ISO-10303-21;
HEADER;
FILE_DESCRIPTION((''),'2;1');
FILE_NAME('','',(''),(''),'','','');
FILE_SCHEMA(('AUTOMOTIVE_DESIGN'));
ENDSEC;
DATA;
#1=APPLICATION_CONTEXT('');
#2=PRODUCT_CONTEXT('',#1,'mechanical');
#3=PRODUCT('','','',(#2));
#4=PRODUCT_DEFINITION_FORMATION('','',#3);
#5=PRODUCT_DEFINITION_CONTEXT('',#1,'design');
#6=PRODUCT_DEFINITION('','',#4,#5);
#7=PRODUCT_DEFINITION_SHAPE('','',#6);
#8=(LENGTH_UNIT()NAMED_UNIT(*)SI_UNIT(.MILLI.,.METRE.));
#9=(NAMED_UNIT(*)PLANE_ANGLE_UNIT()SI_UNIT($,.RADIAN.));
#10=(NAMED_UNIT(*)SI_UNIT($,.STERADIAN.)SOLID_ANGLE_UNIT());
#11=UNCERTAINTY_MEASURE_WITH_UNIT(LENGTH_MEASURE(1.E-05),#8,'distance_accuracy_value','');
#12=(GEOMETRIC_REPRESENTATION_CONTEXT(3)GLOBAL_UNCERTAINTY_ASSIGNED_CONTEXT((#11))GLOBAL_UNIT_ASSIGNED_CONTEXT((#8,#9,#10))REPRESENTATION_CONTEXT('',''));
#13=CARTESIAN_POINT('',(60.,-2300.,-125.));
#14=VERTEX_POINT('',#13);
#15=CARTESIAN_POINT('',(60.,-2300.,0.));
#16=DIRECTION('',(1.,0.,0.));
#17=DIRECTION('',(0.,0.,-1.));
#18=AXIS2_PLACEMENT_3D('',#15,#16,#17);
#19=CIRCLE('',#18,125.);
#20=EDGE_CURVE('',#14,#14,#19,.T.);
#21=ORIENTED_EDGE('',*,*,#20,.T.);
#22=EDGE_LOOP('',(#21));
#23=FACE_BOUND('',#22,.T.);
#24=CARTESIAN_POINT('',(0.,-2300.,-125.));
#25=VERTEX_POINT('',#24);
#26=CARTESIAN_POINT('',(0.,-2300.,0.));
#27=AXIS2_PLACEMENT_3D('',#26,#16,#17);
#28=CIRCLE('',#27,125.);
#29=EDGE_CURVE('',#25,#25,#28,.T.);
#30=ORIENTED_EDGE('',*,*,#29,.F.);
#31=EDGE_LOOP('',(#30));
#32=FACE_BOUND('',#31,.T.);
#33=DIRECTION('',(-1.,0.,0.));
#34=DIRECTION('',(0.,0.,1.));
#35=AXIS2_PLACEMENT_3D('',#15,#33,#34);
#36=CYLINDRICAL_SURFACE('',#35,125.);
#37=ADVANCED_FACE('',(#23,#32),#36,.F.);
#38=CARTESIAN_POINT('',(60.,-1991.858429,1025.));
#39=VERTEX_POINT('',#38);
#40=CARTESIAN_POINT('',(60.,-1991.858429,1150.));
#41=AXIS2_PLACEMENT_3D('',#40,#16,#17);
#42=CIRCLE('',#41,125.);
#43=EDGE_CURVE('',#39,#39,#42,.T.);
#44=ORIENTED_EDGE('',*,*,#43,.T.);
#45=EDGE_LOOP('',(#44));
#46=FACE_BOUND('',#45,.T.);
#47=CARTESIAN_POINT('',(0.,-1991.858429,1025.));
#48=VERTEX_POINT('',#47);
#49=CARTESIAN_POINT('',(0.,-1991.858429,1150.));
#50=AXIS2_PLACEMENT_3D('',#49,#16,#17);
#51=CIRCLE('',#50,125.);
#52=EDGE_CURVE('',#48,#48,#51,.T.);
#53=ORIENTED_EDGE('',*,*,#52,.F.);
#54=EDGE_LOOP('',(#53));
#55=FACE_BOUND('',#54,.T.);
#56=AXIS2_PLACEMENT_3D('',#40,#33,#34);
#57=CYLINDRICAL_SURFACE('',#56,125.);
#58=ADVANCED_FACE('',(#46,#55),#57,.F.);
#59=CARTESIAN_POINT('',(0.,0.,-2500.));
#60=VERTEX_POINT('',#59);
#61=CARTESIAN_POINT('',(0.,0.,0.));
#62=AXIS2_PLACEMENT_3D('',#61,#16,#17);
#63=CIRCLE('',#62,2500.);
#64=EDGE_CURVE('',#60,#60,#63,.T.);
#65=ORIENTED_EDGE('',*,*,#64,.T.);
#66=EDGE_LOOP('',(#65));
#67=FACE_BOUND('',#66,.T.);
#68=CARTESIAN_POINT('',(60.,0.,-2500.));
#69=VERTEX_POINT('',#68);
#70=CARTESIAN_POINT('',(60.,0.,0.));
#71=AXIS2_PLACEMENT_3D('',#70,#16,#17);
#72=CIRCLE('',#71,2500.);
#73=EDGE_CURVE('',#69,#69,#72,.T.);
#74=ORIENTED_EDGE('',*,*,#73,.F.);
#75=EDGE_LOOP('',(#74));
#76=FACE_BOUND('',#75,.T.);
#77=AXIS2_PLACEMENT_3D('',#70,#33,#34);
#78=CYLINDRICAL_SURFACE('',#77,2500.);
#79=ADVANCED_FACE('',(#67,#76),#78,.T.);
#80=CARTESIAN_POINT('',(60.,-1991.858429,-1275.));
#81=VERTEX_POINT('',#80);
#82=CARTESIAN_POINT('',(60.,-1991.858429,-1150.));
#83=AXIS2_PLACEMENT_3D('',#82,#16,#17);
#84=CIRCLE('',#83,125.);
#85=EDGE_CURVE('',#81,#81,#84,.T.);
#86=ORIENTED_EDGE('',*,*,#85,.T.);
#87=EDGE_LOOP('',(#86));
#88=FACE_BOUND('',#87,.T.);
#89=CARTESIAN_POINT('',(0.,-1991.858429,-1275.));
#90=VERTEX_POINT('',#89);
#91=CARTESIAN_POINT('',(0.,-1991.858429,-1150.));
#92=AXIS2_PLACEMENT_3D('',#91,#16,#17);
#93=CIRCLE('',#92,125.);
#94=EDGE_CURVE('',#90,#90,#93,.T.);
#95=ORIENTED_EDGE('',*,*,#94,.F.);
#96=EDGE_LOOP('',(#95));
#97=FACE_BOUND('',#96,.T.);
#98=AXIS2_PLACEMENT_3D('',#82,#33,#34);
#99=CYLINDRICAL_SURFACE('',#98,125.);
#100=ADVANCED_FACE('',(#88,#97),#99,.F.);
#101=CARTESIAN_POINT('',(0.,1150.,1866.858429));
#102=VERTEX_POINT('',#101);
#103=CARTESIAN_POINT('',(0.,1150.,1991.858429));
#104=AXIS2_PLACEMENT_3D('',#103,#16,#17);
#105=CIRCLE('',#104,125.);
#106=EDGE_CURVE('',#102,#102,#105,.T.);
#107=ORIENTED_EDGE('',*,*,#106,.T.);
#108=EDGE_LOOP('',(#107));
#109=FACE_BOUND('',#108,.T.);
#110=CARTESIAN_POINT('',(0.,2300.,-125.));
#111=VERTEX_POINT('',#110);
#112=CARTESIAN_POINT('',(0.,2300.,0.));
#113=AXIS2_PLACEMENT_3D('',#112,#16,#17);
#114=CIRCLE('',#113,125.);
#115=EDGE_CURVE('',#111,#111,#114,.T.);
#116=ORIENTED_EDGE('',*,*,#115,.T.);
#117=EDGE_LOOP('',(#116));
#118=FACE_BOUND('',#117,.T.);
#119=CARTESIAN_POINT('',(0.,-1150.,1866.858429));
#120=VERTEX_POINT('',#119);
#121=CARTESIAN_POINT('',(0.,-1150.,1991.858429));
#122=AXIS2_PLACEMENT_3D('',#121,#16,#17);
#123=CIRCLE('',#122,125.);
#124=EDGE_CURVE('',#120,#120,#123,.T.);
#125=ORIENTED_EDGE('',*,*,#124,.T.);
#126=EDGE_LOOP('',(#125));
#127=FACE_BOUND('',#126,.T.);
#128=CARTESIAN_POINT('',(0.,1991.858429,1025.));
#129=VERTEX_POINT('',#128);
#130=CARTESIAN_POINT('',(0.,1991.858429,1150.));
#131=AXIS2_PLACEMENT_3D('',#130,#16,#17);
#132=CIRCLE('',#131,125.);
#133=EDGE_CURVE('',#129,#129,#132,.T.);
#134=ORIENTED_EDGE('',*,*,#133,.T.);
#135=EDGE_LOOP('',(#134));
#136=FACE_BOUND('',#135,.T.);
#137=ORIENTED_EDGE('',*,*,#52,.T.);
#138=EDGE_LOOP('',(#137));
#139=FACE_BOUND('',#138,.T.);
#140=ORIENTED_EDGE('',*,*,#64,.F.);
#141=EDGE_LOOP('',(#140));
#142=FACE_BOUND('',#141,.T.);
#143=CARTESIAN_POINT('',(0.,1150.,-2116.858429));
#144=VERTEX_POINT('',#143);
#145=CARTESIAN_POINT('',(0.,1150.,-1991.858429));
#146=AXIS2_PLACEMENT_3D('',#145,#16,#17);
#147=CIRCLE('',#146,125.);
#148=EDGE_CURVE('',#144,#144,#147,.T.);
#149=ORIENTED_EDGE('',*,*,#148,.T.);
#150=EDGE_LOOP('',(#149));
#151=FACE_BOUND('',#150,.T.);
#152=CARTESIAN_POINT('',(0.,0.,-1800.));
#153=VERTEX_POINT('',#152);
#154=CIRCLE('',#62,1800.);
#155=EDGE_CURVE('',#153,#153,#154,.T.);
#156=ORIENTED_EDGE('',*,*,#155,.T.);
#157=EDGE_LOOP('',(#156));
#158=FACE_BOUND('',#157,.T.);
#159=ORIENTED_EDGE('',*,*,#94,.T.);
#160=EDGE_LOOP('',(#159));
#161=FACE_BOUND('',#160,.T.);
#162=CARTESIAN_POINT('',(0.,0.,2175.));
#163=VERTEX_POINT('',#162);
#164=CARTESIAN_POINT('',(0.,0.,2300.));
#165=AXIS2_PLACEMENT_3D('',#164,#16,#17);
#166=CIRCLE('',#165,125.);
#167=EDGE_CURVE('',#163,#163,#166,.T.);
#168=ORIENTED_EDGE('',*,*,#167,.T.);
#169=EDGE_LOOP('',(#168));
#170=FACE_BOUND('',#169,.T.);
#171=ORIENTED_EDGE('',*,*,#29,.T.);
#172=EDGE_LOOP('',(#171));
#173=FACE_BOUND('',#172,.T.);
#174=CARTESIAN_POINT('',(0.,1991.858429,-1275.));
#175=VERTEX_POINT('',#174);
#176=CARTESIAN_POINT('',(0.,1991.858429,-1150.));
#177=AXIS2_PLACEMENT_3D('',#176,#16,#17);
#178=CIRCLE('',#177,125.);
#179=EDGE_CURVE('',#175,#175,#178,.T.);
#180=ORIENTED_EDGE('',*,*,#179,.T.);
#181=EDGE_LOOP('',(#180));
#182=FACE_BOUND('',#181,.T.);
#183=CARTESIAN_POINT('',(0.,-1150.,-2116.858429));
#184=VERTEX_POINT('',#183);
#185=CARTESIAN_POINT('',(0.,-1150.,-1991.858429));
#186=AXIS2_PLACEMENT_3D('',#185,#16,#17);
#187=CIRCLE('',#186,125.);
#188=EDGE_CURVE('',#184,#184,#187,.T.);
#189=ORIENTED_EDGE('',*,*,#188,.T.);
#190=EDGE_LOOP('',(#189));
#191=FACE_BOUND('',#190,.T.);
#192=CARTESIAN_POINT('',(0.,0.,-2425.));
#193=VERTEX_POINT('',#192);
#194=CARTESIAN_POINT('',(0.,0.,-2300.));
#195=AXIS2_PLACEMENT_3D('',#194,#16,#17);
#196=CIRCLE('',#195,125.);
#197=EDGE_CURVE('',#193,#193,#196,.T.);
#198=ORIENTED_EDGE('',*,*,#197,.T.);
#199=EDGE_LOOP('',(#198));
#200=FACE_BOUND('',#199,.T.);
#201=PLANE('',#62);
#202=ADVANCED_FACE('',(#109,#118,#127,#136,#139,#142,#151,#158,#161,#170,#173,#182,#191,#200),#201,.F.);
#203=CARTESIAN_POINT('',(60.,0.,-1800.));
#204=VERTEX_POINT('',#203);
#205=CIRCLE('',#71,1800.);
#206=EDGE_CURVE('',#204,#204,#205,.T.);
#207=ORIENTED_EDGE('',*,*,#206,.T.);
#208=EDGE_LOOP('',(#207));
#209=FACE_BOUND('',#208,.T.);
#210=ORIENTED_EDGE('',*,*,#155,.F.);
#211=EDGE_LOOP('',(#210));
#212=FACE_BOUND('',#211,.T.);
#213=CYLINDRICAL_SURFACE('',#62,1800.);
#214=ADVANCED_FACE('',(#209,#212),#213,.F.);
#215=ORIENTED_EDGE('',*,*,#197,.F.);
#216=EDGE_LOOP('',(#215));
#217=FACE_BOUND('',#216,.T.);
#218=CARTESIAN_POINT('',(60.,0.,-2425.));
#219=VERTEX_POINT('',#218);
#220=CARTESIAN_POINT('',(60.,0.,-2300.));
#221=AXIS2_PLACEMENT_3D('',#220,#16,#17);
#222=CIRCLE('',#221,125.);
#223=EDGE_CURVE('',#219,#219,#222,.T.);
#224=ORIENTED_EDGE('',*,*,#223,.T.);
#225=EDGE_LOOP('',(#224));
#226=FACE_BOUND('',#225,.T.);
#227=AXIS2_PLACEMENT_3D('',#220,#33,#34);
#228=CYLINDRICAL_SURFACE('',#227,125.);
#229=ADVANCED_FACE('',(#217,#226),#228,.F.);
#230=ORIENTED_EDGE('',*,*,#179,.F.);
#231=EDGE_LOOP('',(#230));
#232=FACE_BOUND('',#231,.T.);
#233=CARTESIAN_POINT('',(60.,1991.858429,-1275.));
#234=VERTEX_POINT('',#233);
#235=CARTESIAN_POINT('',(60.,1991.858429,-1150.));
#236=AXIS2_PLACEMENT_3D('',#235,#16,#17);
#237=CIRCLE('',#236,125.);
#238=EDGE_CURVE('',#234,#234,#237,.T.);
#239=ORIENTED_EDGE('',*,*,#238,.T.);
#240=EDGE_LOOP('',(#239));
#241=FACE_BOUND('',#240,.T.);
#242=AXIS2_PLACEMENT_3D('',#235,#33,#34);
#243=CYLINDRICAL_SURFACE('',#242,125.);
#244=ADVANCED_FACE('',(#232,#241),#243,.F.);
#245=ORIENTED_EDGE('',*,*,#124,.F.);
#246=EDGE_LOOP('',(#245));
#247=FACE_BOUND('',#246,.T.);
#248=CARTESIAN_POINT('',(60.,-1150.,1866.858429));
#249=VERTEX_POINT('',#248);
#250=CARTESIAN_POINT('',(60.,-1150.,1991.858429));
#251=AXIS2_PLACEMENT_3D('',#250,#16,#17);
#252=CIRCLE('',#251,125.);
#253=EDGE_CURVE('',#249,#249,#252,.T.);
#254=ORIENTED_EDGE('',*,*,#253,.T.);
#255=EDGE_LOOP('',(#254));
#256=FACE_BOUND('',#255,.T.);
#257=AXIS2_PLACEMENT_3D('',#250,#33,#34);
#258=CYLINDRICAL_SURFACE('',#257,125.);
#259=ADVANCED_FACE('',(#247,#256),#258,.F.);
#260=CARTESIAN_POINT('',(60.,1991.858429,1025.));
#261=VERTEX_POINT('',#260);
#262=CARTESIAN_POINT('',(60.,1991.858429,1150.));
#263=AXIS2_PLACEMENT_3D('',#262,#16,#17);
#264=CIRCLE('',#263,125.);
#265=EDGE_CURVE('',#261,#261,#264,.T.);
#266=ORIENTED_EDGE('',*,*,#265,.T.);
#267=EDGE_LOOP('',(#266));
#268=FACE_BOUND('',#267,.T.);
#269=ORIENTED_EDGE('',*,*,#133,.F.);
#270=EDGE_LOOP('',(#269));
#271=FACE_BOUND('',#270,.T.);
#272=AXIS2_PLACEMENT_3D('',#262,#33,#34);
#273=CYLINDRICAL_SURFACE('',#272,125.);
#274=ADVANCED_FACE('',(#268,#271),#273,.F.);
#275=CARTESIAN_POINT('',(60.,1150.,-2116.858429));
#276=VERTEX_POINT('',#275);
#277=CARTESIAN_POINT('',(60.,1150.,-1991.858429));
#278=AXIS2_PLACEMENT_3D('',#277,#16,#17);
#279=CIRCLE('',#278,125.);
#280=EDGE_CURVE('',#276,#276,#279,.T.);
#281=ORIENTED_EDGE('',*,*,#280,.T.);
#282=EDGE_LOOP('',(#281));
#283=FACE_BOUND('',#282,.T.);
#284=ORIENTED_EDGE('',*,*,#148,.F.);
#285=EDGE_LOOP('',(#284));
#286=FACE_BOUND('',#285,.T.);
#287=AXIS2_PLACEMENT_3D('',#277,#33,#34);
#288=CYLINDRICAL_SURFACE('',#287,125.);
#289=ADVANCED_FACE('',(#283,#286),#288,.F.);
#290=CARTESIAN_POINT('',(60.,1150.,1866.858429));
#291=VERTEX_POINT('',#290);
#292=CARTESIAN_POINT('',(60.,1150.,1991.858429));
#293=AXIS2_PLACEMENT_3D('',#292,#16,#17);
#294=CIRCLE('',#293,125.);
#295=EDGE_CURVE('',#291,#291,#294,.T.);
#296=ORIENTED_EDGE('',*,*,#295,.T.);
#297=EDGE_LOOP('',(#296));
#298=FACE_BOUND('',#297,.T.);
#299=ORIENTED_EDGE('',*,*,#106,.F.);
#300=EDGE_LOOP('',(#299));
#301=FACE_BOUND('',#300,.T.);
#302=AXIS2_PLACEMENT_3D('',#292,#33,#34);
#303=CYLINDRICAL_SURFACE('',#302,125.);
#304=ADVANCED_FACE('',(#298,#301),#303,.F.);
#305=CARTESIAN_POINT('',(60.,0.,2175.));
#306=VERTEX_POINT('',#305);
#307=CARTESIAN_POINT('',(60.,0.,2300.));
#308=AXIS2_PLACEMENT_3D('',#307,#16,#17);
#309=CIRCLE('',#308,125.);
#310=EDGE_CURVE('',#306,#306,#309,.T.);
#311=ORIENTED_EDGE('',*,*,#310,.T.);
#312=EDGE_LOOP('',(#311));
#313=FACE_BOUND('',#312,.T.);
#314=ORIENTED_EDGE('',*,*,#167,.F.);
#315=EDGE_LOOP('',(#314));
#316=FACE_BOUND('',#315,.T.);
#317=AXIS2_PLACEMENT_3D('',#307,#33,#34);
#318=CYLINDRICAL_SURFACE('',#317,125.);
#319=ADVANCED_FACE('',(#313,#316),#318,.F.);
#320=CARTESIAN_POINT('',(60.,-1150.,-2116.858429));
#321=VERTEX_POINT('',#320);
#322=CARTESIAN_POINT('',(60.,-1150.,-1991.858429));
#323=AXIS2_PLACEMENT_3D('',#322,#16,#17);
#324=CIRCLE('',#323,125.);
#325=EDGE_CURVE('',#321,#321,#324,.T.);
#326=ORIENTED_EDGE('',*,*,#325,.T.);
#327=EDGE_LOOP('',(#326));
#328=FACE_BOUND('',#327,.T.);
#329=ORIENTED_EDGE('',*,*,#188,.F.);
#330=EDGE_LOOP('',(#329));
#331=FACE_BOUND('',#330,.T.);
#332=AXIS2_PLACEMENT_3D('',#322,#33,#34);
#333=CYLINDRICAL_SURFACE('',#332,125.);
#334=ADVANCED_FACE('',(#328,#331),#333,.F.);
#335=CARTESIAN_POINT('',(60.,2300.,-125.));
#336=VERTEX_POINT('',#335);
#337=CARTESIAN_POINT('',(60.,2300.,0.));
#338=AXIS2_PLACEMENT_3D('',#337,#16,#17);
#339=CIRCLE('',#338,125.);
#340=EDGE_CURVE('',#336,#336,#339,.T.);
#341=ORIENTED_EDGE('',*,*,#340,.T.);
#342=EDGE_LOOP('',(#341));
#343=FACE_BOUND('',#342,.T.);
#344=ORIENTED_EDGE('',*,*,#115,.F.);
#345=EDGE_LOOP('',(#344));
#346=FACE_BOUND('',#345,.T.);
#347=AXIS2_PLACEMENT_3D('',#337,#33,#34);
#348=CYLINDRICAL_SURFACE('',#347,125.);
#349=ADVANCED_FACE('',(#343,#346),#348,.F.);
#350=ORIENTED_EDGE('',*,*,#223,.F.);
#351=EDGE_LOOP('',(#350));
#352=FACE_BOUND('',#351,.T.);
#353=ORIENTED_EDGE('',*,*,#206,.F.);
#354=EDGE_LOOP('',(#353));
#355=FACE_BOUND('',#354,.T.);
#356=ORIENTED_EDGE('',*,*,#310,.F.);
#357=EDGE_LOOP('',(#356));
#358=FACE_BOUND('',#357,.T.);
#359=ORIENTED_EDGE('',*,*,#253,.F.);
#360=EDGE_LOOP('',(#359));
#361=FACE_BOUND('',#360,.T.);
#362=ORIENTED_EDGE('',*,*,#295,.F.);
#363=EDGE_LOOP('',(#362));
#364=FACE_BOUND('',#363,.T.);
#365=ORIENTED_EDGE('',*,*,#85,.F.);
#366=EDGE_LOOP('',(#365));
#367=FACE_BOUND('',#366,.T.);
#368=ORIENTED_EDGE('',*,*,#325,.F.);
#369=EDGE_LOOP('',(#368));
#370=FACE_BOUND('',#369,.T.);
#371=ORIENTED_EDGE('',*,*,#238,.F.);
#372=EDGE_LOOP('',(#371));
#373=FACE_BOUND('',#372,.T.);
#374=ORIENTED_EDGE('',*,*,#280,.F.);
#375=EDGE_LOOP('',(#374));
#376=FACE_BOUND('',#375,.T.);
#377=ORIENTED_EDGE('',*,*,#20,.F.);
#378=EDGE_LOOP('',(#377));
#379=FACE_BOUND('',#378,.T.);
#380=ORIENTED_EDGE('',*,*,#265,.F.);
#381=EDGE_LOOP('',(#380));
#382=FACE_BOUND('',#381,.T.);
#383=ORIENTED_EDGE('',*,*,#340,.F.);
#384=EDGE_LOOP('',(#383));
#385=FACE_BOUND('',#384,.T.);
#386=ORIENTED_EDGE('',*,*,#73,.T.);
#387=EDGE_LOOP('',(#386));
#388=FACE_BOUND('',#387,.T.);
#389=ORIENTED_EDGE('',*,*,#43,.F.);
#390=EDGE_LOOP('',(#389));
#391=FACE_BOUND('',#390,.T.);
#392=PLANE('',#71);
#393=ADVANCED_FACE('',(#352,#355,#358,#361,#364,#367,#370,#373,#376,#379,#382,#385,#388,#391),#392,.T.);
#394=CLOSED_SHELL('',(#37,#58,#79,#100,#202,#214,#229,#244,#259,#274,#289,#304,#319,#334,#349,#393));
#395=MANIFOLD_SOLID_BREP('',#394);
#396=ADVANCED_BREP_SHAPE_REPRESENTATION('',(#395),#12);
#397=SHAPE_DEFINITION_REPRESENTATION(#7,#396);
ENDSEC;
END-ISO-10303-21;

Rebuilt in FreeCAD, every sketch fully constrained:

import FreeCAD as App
import Part
import Sketcher

V = App.Vector
Q = App.Units.Quantity

doc = App.newDocument("Part")
body = doc.addObject("PartDesign::Body", "Body")

# Sketch on YZ plane
sketch1 = doc.addObject("Sketcher::SketchObject", "Sketch")
body.addObject(sketch1)
sketch1.AttachmentSupport = (doc.YZ_Plane, [""])
sketch1.MapMode = "FlatFace"
sketch1.addGeometry(Part.Circle(V(0, 0, 0), V(0, 0, 1), 2500), False)
sketch1.addGeometry(Part.Circle(V(-1991.858429, 1150, 0), V(0, 0, 1), 125), False)
sketch1.addGeometry(Part.Circle(V(-1150, 1991.858429, 0), V(0, 0, 1), 125), False)
sketch1.addGeometry(Part.Circle(V(-2300, 0, 0), V(0, 0, 1), 125), False)
sketch1.addGeometry(Part.Circle(V(-1991.858429, -1150, 0), V(0, 0, 1), 125), False)
sketch1.addGeometry(Part.Circle(V(-1150, -1991.858429, 0), V(0, 0, 1), 125), False)
sketch1.addGeometry(Part.Circle(V(0, 2300, 0), V(0, 0, 1), 125), False)
sketch1.addGeometry(Part.Circle(V(1150, 1991.858429, 0), V(0, 0, 1), 125), False)
sketch1.addGeometry(Part.Circle(V(1991.858429, 1150, 0), V(0, 0, 1), 125), False)
sketch1.addGeometry(Part.Circle(V(0, -2300, 0), V(0, 0, 1), 125), False)
sketch1.addGeometry(Part.Circle(V(1150, -1991.858429, 0), V(0, 0, 1), 125), False)
sketch1.addGeometry(Part.Circle(V(2300, 0, 0), V(0, 0, 1), 125), False)
sketch1.addGeometry(Part.Circle(V(1991.858429, -1150, 0), V(0, 0, 1), 125), False)
sketch1.addConstraint(Sketcher.Constraint("Coincident", 0, 3, -1, 1))
sketch1.addConstraint(Sketcher.Constraint("Equal", 1, 2))
sketch1.addConstraint(Sketcher.Constraint("Equal", 2, 3))
sketch1.addConstraint(Sketcher.Constraint("Equal", 3, 4))
sketch1.addConstraint(Sketcher.Constraint("Equal", 4, 5))
sketch1.addConstraint(Sketcher.Constraint("Equal", 5, 6))
sketch1.addConstraint(Sketcher.Constraint("Equal", 6, 7))
sketch1.addConstraint(Sketcher.Constraint("Equal", 7, 8))
sketch1.addConstraint(Sketcher.Constraint("Equal", 8, 9))
sketch1.addConstraint(Sketcher.Constraint("Equal", 9, 10))
sketch1.addConstraint(Sketcher.Constraint("Equal", 10, 11))
sketch1.addConstraint(Sketcher.Constraint("Equal", 11, 12))
sketch1.addConstraint(Sketcher.Constraint("Symmetric", 5, 3, 7, 3, -1, 1))
sketch1.addConstraint(Sketcher.Constraint("Symmetric", 4, 3, 8, 3, -1, 1))
sketch1.addConstraint(Sketcher.Constraint("Symmetric", 6, 3, 9, 3, -1, 1))
sketch1.addConstraint(Sketcher.Constraint("Symmetric", 2, 3, 10, 3, -1, 1))
sketch1.addConstraint(Sketcher.Constraint("Symmetric", 3, 3, 11, 3, -1, 1))
sketch1.addConstraint(Sketcher.Constraint("Symmetric", 1, 3, 12, 3, -1, 1))
sketch1.addConstraint(Sketcher.Constraint("Symmetric", 2, 3, 7, 3, -2))
sketch1.addConstraint(Sketcher.Constraint("Symmetric", 1, 3, 8, 3, -2))
sketch1.addConstraint(Sketcher.Constraint("PointOnObject", 3, 3, -1))
sketch1.addConstraint(Sketcher.Constraint("PointOnObject", 6, 3, -2))
sketch1.addConstraint(Sketcher.Constraint("Diameter", 0, Q("5000 mm")))
sketch1.addConstraint(Sketcher.Constraint("Diameter", 1, Q("250 mm")))
sketch1.addConstraint(Sketcher.Constraint("DistanceY", -1, 1, 1, 3, Q("1150 mm")))
sketch1.addConstraint(Sketcher.Constraint("DistanceX", 2, 3, -1, 1, Q("1150 mm")))
sketch1.addConstraint(Sketcher.Constraint("DistanceX", 3, 3, -1, 1, Q("2300 mm")))
sketch1.addConstraint(Sketcher.Constraint("DistanceY", -1, 1, 6, 3, Q("2300 mm")))
sketch1.addConstraint(Sketcher.Constraint("DistanceX", 1, 3, -1, 1, Q("1991.858429 mm")))
sketch1.addConstraint(Sketcher.Constraint("DistanceY", -1, 1, 2, 3, Q("1991.858429 mm")))
pad1 = doc.addObject("PartDesign::Pad", "Pad")
body.addObject(pad1)
pad1.Profile = sketch1
pad1.Length = 60

# Sketch on YZ plane
sketch2 = doc.addObject("Sketcher::SketchObject", "Sketch001")
body.addObject(sketch2)
sketch2.AttachmentSupport = (doc.YZ_Plane, [""])
sketch2.MapMode = "FlatFace"
sketch2.AttachmentOffset = App.Placement(V(0, 0, 60), App.Rotation())
sketch2.addGeometry(Part.Circle(V(0, 0, 0), V(0, 0, 1), 1800), False)
sketch2.addConstraint(Sketcher.Constraint("Coincident", 0, 3, -1, 1))
sketch2.addConstraint(Sketcher.Constraint("Diameter", 0, Q("3600 mm")))
pocket1 = doc.addObject("PartDesign::Pocket", "Pocket")
body.addObject(pocket1)
pocket1.Profile = sketch2
pocket1.Length = 60

doc.recompute()
